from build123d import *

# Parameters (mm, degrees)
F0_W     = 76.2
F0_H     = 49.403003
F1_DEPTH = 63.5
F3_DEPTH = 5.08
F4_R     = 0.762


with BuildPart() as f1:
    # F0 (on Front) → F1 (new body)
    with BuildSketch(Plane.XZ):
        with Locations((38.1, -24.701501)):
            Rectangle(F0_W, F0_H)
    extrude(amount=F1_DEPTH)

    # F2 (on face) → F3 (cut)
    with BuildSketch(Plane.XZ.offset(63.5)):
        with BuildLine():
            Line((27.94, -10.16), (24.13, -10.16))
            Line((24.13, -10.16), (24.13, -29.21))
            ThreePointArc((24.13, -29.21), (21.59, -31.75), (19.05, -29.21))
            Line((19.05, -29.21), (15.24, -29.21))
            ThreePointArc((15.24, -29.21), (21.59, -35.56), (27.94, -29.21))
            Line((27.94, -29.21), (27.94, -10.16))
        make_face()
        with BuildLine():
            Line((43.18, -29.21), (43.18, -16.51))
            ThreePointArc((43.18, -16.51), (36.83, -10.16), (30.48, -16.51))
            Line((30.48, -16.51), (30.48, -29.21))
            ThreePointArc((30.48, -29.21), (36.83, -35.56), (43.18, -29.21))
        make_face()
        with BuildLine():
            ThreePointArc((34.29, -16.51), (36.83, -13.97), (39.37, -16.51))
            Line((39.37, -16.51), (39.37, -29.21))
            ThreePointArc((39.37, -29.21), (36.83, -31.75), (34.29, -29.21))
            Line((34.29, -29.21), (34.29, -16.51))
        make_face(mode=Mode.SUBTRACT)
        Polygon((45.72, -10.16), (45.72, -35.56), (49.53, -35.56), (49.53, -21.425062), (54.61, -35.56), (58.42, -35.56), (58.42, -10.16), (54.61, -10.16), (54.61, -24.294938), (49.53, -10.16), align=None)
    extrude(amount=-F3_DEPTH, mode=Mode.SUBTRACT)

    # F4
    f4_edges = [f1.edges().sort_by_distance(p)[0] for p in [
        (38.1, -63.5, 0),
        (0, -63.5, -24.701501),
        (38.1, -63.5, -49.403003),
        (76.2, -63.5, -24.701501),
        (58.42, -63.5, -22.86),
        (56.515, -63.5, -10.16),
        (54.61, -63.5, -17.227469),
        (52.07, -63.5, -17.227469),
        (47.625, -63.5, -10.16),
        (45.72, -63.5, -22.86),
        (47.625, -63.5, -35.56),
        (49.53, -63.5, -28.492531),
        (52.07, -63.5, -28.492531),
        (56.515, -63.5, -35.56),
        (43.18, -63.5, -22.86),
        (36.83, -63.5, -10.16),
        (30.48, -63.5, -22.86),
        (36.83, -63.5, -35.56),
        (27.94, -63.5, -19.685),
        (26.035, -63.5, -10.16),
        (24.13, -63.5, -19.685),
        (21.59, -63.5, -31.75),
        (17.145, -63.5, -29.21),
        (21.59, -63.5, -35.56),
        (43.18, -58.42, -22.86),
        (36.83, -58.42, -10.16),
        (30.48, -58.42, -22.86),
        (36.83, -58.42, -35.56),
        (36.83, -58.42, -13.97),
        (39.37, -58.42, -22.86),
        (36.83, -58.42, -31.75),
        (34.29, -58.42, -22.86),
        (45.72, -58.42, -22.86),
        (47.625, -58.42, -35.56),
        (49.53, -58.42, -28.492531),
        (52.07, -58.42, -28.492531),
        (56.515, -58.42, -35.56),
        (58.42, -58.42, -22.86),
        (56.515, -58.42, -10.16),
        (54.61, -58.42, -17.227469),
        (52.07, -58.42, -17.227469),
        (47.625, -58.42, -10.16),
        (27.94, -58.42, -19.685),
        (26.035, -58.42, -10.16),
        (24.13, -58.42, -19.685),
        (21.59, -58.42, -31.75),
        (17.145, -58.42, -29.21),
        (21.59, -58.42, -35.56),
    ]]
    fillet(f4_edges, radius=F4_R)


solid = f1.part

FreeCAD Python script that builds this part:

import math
import FreeCAD as App
import Part
import Sketcher
from FreeCAD import Vector
Q = App.Units.Quantity


def edges_at(feature, points):
    """Names of the edges that pass closest to the given points."""
    edges = feature.Shape.Edges
    near = lambda p: min(range(len(edges)), key=lambda i: edges[i].distToShape(Part.Vertex(*p))[0])
    return sorted({f"Edge{near(p) + 1}" for p in points})


def add_polygon(sketch, points):
    """Adds a closed chain of lines whose ends are joined by coincident constraints."""
    first, n = sketch.GeometryCount, len(points)
    for a, b in zip(points, points[1:] + points[:1]):
        sketch.addGeometry(Part.LineSegment(App.Vector(*a, 0), App.Vector(*b, 0)), False)
    for i in range(n):
        sketch.addConstraint(Sketcher.Constraint("Coincident", first + i, 2, first + (i + 1) % n, 1))

doc = App.newDocument("Part")
params = doc.addObject("Spreadsheet::Sheet", "Params")
for row, (alias, value) in enumerate([
    ("sketch1_width", "3 in"),
    ("sketch1_height", "1.9450001 in"),
    ("pad1_length", "2.5 in"),
    ("sketch2_radius", "0.1 in"),
    ("sketch2_height", "1 in"),
    ("sketch2_radius2", "0.25 in"),
    ("sketch2_height2", "0.5 in"),
    ("sketch2_height3", "0.75 in"),
    ("pocket1_length", "0.2 in"),
    ("fillet_radius", "0.03 in"),
], start=1):
    params.set(f"A{row}", alias)
    params.set(f"B{row}", "=" + value)
    params.setAlias(f"B{row}", alias)

body = doc.addObject("PartDesign::Body", "Body")

sketch1 = doc.addObject("Sketcher::SketchObject", "Sketch")
body.addObject(sketch1)
sketch1.AttachmentSupport = (doc.XZ_Plane, [""])
sketch1.MapMode = "FlatFace"
add_polygon(sketch1, [(0, 0), (0, -49.403002), (76.2, -49.403002), (76.2, 0)])
sketch1.addConstraint(Sketcher.Constraint("Vertical", 0))
sketch1.addConstraint(Sketcher.Constraint("Horizontal", 1))
sketch1.addConstraint(Sketcher.Constraint("Vertical", 2))
sketch1.addConstraint(Sketcher.Constraint("Horizontal", 3))
sketch1.addConstraint(Sketcher.Constraint("Coincident", 3, 2, -1, 1))
sketch1.addConstraint(Sketcher.Constraint("DistanceX", 1, 1, 1, 2, Q("3 in")))
sketch1.addConstraint(Sketcher.Constraint("DistanceY", 0, 2, 0, 1, Q("1.9450001 in")))
sketch1.setExpression("Constraints[9]", "Params.sketch1_width")
sketch1.setExpression("Constraints[10]", "Params.sketch1_height")
pad1 = doc.addObject("PartDesign::Pad", "Pad")
body.addObject(pad1)
pad1.Profile = sketch1
pad1.setExpression("Length", "Params.pad1_length")

sketch2 = doc.addObject("Sketcher::SketchObject", "Sketch001")
body.addObject(sketch2)
sketch2.AttachmentSupport = (doc.XZ_Plane, [""])
sketch2.MapMode = "FlatFace"
sketch2.AttachmentOffset = App.Placement(Vector(0, 0, 2.5 * 25.4), App.Rotation())
sketch2.addGeometry(Part.LineSegment(Vector(27.94, -10.16, 0), Vector(24.13, -10.16, 0)), False)
sketch2.addGeometry(Part.LineSegment(Vector(24.13, -10.16, 0), Vector(24.13, -29.21, 0)), False)
sketch2.addGeometry(Part.ArcOfCircle(Part.Circle(Vector(21.59, -29.21, 0), Vector(0, 0, 1), 2.54), math.radians(180), math.radians(360)), False)
sketch2.addGeometry(Part.LineSegment(Vector(19.05, -29.21, 0), Vector(15.24, -29.21, 0)), False)
sketch2.addGeometry(Part.ArcOfCircle(Part.Circle(Vector(21.59, -29.21, 0), Vector(0, 0, 1), 6.35), math.radians(180), math.radians(360)), False)
sketch2.addGeometry(Part.LineSegment(Vector(27.94, -29.21, 0), Vector(27.94, -10.16, 0)), False)
sketch2.addGeometry(Part.LineSegment(Vector(43.18, -29.21, 0), Vector(43.18, -16.51, 0)), False)
sketch2.addGeometry(Part.ArcOfCircle(Part.Circle(Vector(36.83, -16.51, 0), Vector(0, 0, 1), 6.35), math.radians(0), math.radians(180)), False)
sketch2.addGeometry(Part.LineSegment(Vector(30.48, -16.51, 0), Vector(30.48, -29.21, 0)), False)
sketch2.addGeometry(Part.ArcOfCircle(Part.Circle(Vector(36.83, -29.21, 0), Vector(0, 0, 1), 6.35), math.radians(180), math.radians(360)), False)
sketch2.addGeometry(Part.LineSegment(Vector(34.29, -29.21, 0), Vector(34.29, -16.51, 0)), False)
sketch2.addGeometry(Part.ArcOfCircle(Part.Circle(Vector(36.83, -16.51, 0), Vector(0, 0, 1), 2.54), math.radians(0), math.radians(180)), False)
sketch2.addGeometry(Part.LineSegment(Vector(39.37, -16.51, 0), Vector(39.37, -29.21, 0)), False)
sketch2.addGeometry(Part.ArcOfCircle(Part.Circle(Vector(36.83, -29.21, 0), Vector(0, 0, 1), 2.54), math.radians(180), math.radians(360)), False)
add_polygon(sketch2, [(45.72, -10.16), (45.72, -35.56), (49.53, -35.56), (49.53, -21.425062), (54.61, -35.56), (58.42, -35.56), (58.42, -10.16), (54.61, -10.16), (54.61, -24.294938), (49.53, -10.16)])
sketch2.addConstraint(Sketcher.Constraint("Coincident", 0, 2, 1, 1))
sketch2.addConstraint(Sketcher.Constraint("Tangent", 1, 2, 2, 2))
sketch2.addConstraint(Sketcher.Constraint("Coincident", 2, 1, 3, 1))
sketch2.addConstraint(Sketcher.Constraint("Coincident", 3, 2, 4, 1))
sketch2.addConstraint(Sketcher.Constraint("Tangent", 4, 2, 5, 1))
sketch2.addConstraint(Sketcher.Constraint("Coincident", 5, 2, 0, 1))
sketch2.addConstraint(Sketcher.Constraint("Tangent", 6, 2, 7, 1))
sketch2.addConstraint(Sketcher.Constraint("Tangent", 7, 2, 8, 1))
sketch2.addConstraint(Sketcher.Constraint("Tangent", 8, 2, 9, 1))
sketch2.addConstraint(Sketcher.Constraint("Tangent", 9, 2, 6, 1))
sketch2.addConstraint(Sketcher.Constraint("Tangent", 10, 2, 11, 2))
sketch2.addConstraint(Sketcher.Constraint("Tangent", 11, 1, 12, 1))
sketch2.addConstraint(Sketcher.Constraint("Tangent", 12, 2, 13, 2))
sketch2.addConstraint(Sketcher.Constraint("Tangent", 13, 1, 10, 1))
sketch2.addConstraint(Sketcher.Constraint("Horizontal", 0))
sketch2.addConstraint(Sketcher.Constraint("Vertical", 1))
sketch2.addConstraint(Sketcher.Constraint("Horizontal", 3))
sketch2.addConstraint(Sketcher.Constraint("Vertical", 5))
sketch2.addConstraint(Sketcher.Constraint("Vertical", 6))
sketch2.addConstraint(Sketcher.Constraint("Vertical", 8))
sketch2.addConstraint(Sketcher.Constraint("Vertical", 10))
sketch2.addConstraint(Sketcher.Constraint("Vertical", 12))
sketch2.addConstraint(Sketcher.Constraint("Vertical", 14))
sketch2.addConstraint(Sketcher.Constraint("Horizontal", 15))
sketch2.addConstraint(Sketcher.Constraint("Vertical", 16))
sketch2.addConstraint(Sketcher.Constraint("Horizontal", 18))
sketch2.addConstraint(Sketcher.Constraint("Vertical", 19))
sketch2.addConstraint(Sketcher.Constraint("Horizontal", 20))
sketch2.addConstraint(Sketcher.Constraint("Vertical", 21))
sketch2.addConstraint(Sketcher.Constraint("Horizontal", 23))
sketch2.addConstraint(Sketcher.Constraint("Coincident", 4, 3, 2, 3))
sketch2.addConstraint(Sketcher.Constraint("Coincident", 11, 3, 7, 3))
sketch2.addConstraint(Sketcher.Constraint("Equal", 4, 7))
sketch2.addConstraint(Sketcher.Constraint("Equal", 2, 11))
sketch2.addConstraint(Sketcher.Constraint("Parallel", 17, 22))
sketch2.addConstraint(Sketcher.Constraint("Horizontal", 4, 3, 9, 3))
sketch2.addConstraint(Sketcher.Constraint("Horizontal", 4, 3, 13, 3))
sketch2.addConstraint(Sketcher.Constraint("Horizontal", 1, 2, 2, 1))
sketch2.addConstraint(Sketcher.Constraint("Horizontal", 15, 2, 17, 2))
sketch2.addConstraint(Sketcher.Constraint("Horizontal", 5, 2, 19, 2))
sketch2.addConstraint(Sketcher.Constraint("Horizontal", 20, 2, 22, 2))
sketch2.addConstraint(Sketcher.Constraint("Vertical", 17, 2, 20, 2))
sketch2.addConstraint(Sketcher.Constraint("Vertical", 16, 2, 22, 2))
sketch2.addConstraint(Sketcher.Constraint("Equal", 3, 15))
sketch2.addConstraint(Sketcher.Constraint("Equal", 15, 18))
sketch2.addConstraint(Sketcher.Constraint("Radius", 2, Q("0.1 in")))
sketch2.addConstraint(Sketcher.Constraint("DistanceY", 14, 2, 14, 1, Q("1 in")))
sketch2.addConstraint(Sketcher.Constraint("Radius", 4, Q("0.25 in")))
sketch2.addConstraint(Sketcher.Constraint("DistanceY", 6, 1, 6, 2, Q("0.5 in")))
sketch2.addConstraint(Sketcher.Constraint("DistanceY", 1, 2, 1, 1, Q("0.75 in")))
sketch2.addConstraint(Sketcher.Constraint("DistanceY", 0, 2, -1, 1, Q("0.4 in")))
sketch2.addConstraint(Sketcher.Constraint("DistanceX", -1, 1, 3, 2, Q("0.6 in")))
sketch2.addConstraint(Sketcher.Constraint("DistanceX", -1, 1, 6, 2, Q("1.7 in")))
sketch2.addConstraint(Sketcher.Constraint("DistanceX", -1, 1, 14, 2, Q("1.8 in")))
sketch2.addConstraint(Sketcher.Constraint("DistanceX", -1, 1, 18, 2, Q("2.3 in")))
sketch2.addConstraint(Sketcher.Constraint("DistanceY", 16, 1, 16, 2, Q("14.134938 mm")))
sketch2.setExpression("Constraints[55]", "Params.sketch2_radius")
sketch2.setExpression("Constraints[56]", "Params.sketch2_height")
sketch2.setExpression("Constraints[57]", "Params.sketch2_radius2")
sketch2.setExpression("Constraints[58]", "Params.sketch2_height2")
sketch2.setExpression("Constraints[59]", "Params.sketch2_height3")
pocket1 = doc.addObject("PartDesign::Pocket", "Pocket")
body.addObject(pocket1)
pocket1.Profile = sketch2
pocket1.setExpression("Length", "Params.pocket1_length")
doc.recompute()

fillet = doc.addObject("PartDesign::Fillet", "Fillet")
body.addObject(fillet)
fillet.Base = (pocket1, edges_at(pocket1, [
    (38.1, -63.5, 0),
    (0, -63.5, -24.702),
    (38.1, -63.5, -49.403),
    (76.2, -63.5, -24.702),
    (58.42, -63.5, -22.86),
    (56.515, -63.5, -10.16),
    (54.61, -63.5, -17.227),
    (52.07, -63.5, -17.227),
    (47.625, -63.5, -10.16),
    (45.72, -63.5, -22.86),
    (47.625, -63.5, -35.56),
    (49.53, -63.5, -28.493),
    (52.07, -63.5, -28.493),
    (56.515, -63.5, -35.56),
    (43.18, -63.5, -22.86),
    (36.83, -63.5, -10.16),
    (30.48, -63.5, -22.86),
    (36.83, -63.5, -35.56),
    (27.94, -63.5, -19.685),
    (26.035, -63.5, -10.16),
    (24.13, -63.5, -19.685),
    (21.59, -63.5, -31.75),
    (17.145, -63.5, -29.21),
    (21.59, -63.5, -35.56),
    (43.18, -58.42, -22.86),
    (36.83, -58.42, -10.16),
    (30.48, -58.42, -22.86),
    (36.83, -58.42, -35.56),
    (36.83, -58.42, -13.97),
    (39.37, -58.42, -22.86),
    (36.83, -58.42, -31.75),
    (34.29, -58.42, -22.86),
    (45.72, -58.42, -22.86),
    (47.625, -58.42, -35.56),
    (49.53, -58.42, -28.493),
    (52.07, -58.42, -28.493),
    (56.515, -58.42, -35.56),
    (58.42, -58.42, -22.86),
    (56.515, -58.42, -10.16),
    (54.61, -58.42, -17.227),
    (52.07, -58.42, -17.227),
    (47.625, -58.42, -10.16),
    (27.94, -58.42, -19.685),
    (26.035, -58.42, -10.16),
    (24.13, -58.42, -19.685),
    (21.59, -58.42, -31.75),
    (17.145, -58.42, -29.21),
    (21.59, -58.42, -35.56),
]))
fillet.setExpression("Radius", "Params.fillet_radius")

doc.recompute()
